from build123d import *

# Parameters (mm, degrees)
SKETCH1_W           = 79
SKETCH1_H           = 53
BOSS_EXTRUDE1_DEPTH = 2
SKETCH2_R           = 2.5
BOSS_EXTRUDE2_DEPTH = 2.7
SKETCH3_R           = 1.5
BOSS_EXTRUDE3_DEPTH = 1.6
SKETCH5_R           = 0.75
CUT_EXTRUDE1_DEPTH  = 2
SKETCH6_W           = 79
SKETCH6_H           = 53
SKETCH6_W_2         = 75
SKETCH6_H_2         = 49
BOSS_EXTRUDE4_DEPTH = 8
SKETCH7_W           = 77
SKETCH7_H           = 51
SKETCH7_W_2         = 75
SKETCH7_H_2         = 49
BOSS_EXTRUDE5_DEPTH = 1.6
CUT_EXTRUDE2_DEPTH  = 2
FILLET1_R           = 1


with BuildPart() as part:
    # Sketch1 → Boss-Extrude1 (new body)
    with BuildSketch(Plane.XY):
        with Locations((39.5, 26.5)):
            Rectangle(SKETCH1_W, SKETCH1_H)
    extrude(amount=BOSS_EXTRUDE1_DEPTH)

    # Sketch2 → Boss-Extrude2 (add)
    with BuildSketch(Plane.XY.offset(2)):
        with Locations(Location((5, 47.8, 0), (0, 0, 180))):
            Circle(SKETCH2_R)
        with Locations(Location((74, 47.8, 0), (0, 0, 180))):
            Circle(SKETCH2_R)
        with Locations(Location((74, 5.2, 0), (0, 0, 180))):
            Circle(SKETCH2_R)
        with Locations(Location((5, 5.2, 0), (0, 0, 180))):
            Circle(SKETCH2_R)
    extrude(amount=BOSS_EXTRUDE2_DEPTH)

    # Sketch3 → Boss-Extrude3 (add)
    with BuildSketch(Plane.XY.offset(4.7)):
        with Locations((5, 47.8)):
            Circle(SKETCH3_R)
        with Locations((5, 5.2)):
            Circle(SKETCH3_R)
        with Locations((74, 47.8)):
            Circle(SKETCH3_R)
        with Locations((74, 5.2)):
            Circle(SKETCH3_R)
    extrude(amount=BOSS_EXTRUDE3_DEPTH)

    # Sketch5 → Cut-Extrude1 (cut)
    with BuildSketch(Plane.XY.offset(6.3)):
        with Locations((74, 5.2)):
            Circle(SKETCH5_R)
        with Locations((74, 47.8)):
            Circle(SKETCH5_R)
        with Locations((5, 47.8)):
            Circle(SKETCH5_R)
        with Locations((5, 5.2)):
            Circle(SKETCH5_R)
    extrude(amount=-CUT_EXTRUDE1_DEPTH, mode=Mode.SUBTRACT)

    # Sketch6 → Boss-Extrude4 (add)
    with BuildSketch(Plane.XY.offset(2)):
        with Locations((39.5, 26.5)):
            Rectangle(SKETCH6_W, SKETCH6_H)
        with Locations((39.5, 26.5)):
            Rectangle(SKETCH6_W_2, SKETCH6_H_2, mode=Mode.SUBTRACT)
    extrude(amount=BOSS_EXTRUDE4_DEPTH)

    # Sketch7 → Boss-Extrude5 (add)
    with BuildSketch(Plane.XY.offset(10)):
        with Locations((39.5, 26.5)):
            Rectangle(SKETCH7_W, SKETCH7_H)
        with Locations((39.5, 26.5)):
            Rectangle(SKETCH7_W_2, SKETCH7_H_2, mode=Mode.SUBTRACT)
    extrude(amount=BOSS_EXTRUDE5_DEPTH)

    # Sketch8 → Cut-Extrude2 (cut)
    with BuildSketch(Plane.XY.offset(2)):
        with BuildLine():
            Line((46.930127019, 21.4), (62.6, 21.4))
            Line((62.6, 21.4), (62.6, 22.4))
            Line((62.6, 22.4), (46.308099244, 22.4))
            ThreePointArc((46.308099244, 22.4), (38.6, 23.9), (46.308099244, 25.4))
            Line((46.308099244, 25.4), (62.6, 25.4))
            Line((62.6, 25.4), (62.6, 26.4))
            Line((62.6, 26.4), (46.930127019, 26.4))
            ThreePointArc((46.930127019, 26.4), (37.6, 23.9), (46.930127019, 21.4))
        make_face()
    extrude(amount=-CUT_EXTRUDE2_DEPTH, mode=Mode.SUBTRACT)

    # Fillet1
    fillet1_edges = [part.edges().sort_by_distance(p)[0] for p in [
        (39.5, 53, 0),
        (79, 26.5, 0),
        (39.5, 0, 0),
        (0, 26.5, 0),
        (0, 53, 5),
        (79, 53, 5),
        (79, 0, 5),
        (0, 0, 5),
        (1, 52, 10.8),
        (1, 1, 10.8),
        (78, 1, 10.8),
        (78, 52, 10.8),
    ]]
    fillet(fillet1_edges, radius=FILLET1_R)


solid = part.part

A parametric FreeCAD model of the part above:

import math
import FreeCAD as App
import Part
import Sketcher
from FreeCAD import Vector
Q = App.Units.Quantity


def edges_at(feature, points):
    """Names of the edges that pass closest to the given points."""
    edges = feature.Shape.Edges
    near = lambda p: min(range(len(edges)), key=lambda i: edges[i].distToShape(Part.Vertex(*p))[0])
    return sorted({f"Edge{near(p) + 1}" for p in points})

doc = App.newDocument("Part")
params = doc.addObject("Spreadsheet::Sheet", "Params")
for row, (alias, value) in enumerate([
    ("sketch1_width", "79 mm"),
    ("sketch1_height", "53 mm"),
    ("pad1_length", "2 mm"),
    ("sketch2_diameter", "5 mm"),
    ("pad2_length", "2.7 mm"),
    ("sketch3_diameter", "3 mm"),
    ("pad3_length", "1.6 mm"),
    ("sketch4_diameter", "1.5 mm"),
    ("pocket1_length", "2 mm"),
    ("sketch5_width", "79 mm"),
    ("sketch5_width2", "75 mm"),
    ("sketch5_height", "53 mm"),
    ("sketch5_height2", "49 mm"),
    ("pad4_length", "8 mm"),
    ("sketch6_width", "77 mm"),
    ("sketch6_width2", "75 mm"),
    ("sketch6_height", "51 mm"),
    ("sketch6_height2", "49 mm"),
    ("pad5_length", "1.6 mm"),
    ("sketch7_radius", "4 mm"),
    ("sketch7_radius2", "5 mm"),
    ("sketch7_height", "1 mm"),
    ("pocket2_length", "2 mm"),
    ("fillet_radius", "1 mm"),
], start=1):
    params.set(f"A{row}", alias)
    params.set(f"B{row}", "=" + value)
    params.setAlias(f"B{row}", alias)

body = doc.addObject("PartDesign::Body", "Body")

# Sketch on XY plane
sketch1 = body.newObject("Sketcher::SketchObject", "Sketch")
sketch1.AttachmentSupport = (doc.getObject("XY_Plane"), [""])
sketch1.MapMode = "FlatFace"
sketch1.addGeometry([
    Part.LineSegment(Vector(0, 53, 0), Vector(0, 0, 0)),
    Part.LineSegment(Vector(0, 0, 0), Vector(79, 0, 0)),
    Part.LineSegment(Vector(79, 0, 0), Vector(79, 53, 0)),
    Part.LineSegment(Vector(79, 53, 0), Vector(0, 53, 0)),
], False)
sketch1.addConstraint([
    Sketcher.Constraint("Coincident", 0, 2, 1, 1),
    Sketcher.Constraint("Coincident", 1, 2, 2, 1),
    Sketcher.Constraint("Coincident", 2, 2, 3, 1),
    Sketcher.Constraint("Coincident", 3, 2, 0, 1),
    Sketcher.Constraint("Vertical", 0),
    Sketcher.Constraint("Horizontal", 1),
    Sketcher.Constraint("Vertical", 2),
    Sketcher.Constraint("Horizontal", 3),
    Sketcher.Constraint("Coincident", 0, 2, -1, 1),
    Sketcher.Constraint("DistanceX", 1, 1, 1, 2, Q("79 mm")),
    Sketcher.Constraint("DistanceY", 0, 2, 0, 1, Q("53 mm")),
])
sketch1.setExpression("Constraints[9]", "Params.sketch1_width")
sketch1.setExpression("Constraints[10]", "Params.sketch1_height")
pad1 = body.newObject("PartDesign::Pad", "Pad")
pad1.Profile = sketch1
pad1.setExpression("Length", "Params.pad1_length")

# Sketch on XY plane
sketch2 = body.newObject("Sketcher::SketchObject", "Sketch001")
sketch2.AttachmentSupport = (doc.getObject("XY_Plane"), [""])
sketch2.MapMode = "FlatFace"
sketch2.AttachmentOffset = App.Placement(Vector(0, 0, 2), App.Rotation())
sketch2.addGeometry([
    Part.Circle(Vector(5, 47.8, 0), Vector(0, 0, 1), 2.5),
    Part.Circle(Vector(74, 47.8, 0), Vector(0, 0, 1), 2.5),
    Part.Circle(Vector(74, 5.2, 0), Vector(0, 0, 1), 2.5),
    Part.Circle(Vector(5, 5.2, 0), Vector(0, 0, 1), 2.5),
], False)
sketch2.addConstraint([
    Sketcher.Constraint("Equal", 0, 1),
    Sketcher.Constraint("Equal", 1, 2),
    Sketcher.Constraint("Equal", 2, 3),
    Sketcher.Constraint("Horizontal", 0, 3, 1, 3),
    Sketcher.Constraint("Horizontal", 2, 3, 3, 3),
    Sketcher.Constraint("Vertical", 1, 3, 2, 3),
    Sketcher.Constraint("Vertical", 0, 3, 3, 3),
    Sketcher.Constraint("Diameter", 0, Q("5 mm")),
    Sketcher.Constraint("DistanceX", -1, 1, 0, 3, Q("5 mm")),
    Sketcher.Constraint("DistanceX", -1, 1, 1, 3, Q("74 mm")),
    Sketcher.Constraint("DistanceY", -1, 1, 0, 3, Q("47.8 mm")),
    Sketcher.Constraint("DistanceY", -1, 1, 2, 3, Q("5.2 mm")),
])
sketch2.setExpression("Constraints[7]", "Params.sketch2_diameter")
pad2 = body.newObject("PartDesign::Pad", "Pad001")
pad2.Profile = sketch2
pad2.setExpression("Length", "Params.pad2_length")

# Sketch on XY plane
sketch3 = body.newObject("Sketcher::SketchObject", "Sketch002")
sketch3.AttachmentSupport = (doc.getObject("XY_Plane"), [""])
sketch3.MapMode = "FlatFace"
sketch3.AttachmentOffset = App.Placement(Vector(0, 0, 4.7), App.Rotation())
sketch3.addGeometry([
    Part.Circle(Vector(5, 47.8, 0), Vector(0, 0, 1), 1.5),
    Part.Circle(Vector(5, 5.2, 0), Vector(0, 0, 1), 1.5),
    Part.Circle(Vector(74, 47.8, 0), Vector(0, 0, 1), 1.5),
    Part.Circle(Vector(74, 5.2, 0), Vector(0, 0, 1), 1.5),
], False)
sketch3.addConstraint([
    Sketcher.Constraint("Equal", 0, 1),
    Sketcher.Constraint("Equal", 1, 2),
    Sketcher.Constraint("Equal", 2, 3),
    Sketcher.Constraint("Horizontal", 0, 3, 2, 3),
    Sketcher.Constraint("Horizontal", 1, 3, 3, 3),
    Sketcher.Constraint("Vertical", 0, 3, 1, 3),
    Sketcher.Constraint("Vertical", 2, 3, 3, 3),
    Sketcher.Constraint("Diameter", 0, Q("3 mm")),
    Sketcher.Constraint("DistanceX", -1, 1, 0, 3, Q("5 mm")),
    Sketcher.Constraint("DistanceX", -1, 1, 2, 3, Q("74 mm")),
    Sketcher.Constraint("DistanceY", -1, 1, 0, 3, Q("47.8 mm")),
    Sketcher.Constraint("DistanceY", -1, 1, 1, 3, Q("5.2 mm")),
])
sketch3.setExpression("Constraints[7]", "Params.sketch3_diameter")
pad3 = body.newObject("PartDesign::Pad", "Pad002")
pad3.Profile = sketch3
pad3.setExpression("Length", "Params.pad3_length")

# Sketch on XY plane
sketch4 = body.newObject("Sketcher::SketchObject", "Sketch003")
sketch4.AttachmentSupport = (doc.getObject("XY_Plane"), [""])
sketch4.MapMode = "FlatFace"
sketch4.AttachmentOffset = App.Placement(Vector(0, 0, 6.3), App.Rotation())
sketch4.addGeometry([
    Part.Circle(Vector(74, 5.2, 0), Vector(0, 0, 1), 0.8),
    Part.Circle(Vector(74, 47.8, 0), Vector(0, 0, 1), 0.8),
    Part.Circle(Vector(5, 47.8, 0), Vector(0, 0, 1), 0.8),
    Part.Circle(Vector(5, 5.2, 0), Vector(0, 0, 1), 0.8),
], False)
sketch4.addConstraint([
    Sketcher.Constraint("Equal", 0, 1),
    Sketcher.Constraint("Equal", 1, 2),
    Sketcher.Constraint("Equal", 2, 3),
    Sketcher.Constraint("Horizontal", 1, 3, 2, 3),
    Sketcher.Constraint("Horizontal", 0, 3, 3, 3),
    Sketcher.Constraint("Vertical", 0, 3, 1, 3),
    Sketcher.Constraint("Vertical", 2, 3, 3, 3),
    Sketcher.Constraint("Diameter", 0, Q("1.5 mm")),
    Sketcher.Constraint("DistanceX", -1, 1, 0, 3, Q("74 mm")),
    Sketcher.Constraint("DistanceX", -1, 1, 2, 3, Q("5 mm")),
    Sketcher.Constraint("DistanceY", -1, 1, 0, 3, Q("5.2 mm")),
    Sketcher.Constraint("DistanceY", -1, 1, 1, 3, Q("47.8 mm")),
])
sketch4.setExpression("Constraints[7]", "Params.sketch4_diameter")
pocket1 = body.newObject("PartDesign::Pocket", "Pocket")
pocket1.Profile = sketch4
pocket1.setExpression("Length", "Params.pocket1_length")

# Sketch on XY plane
sketch5 = body.newObject("Sketcher::SketchObject", "Sketch004")
sketch5.AttachmentSupport = (doc.getObject("XY_Plane"), [""])
sketch5.MapMode = "FlatFace"
sketch5.AttachmentOffset = App.Placement(Vector(0, 0, 2), App.Rotation())
sketch5.addGeometry([
    Part.LineSegment(Vector(0, 53, 0), Vector(0, 0, 0)),  # 0
    Part.LineSegment(Vector(0, 0, 0), Vector(79, 0, 0)),  # 1
    Part.LineSegment(Vector(79, 0, 0), Vector(79, 53, 0)),  # 2
    Part.LineSegment(Vector(79, 53, 0), Vector(0, 53, 0)),  # 3
    Part.LineSegment(Vector(77, 2, 0), Vector(2, 2, 0)),  # 4
    Part.LineSegment(Vector(2, 2, 0), Vector(2, 51, 0)),  # 5
    Part.LineSegment(Vector(2, 51, 0), Vector(77, 51, 0)),  # 6
    Part.LineSegment(Vector(77, 51, 0), Vector(77, 2, 0)),  # 7
], False)
sketch5.addConstraint([
    Sketcher.Constraint("Coincident", 0, 2, 1, 1),
    Sketcher.Constraint("Coincident", 1, 2, 2, 1),
    Sketcher.Constraint("Coincident", 2, 2, 3, 1),
    Sketcher.Constraint("Coincident", 3, 2, 0, 1),
    Sketcher.Constraint("Coincident", 4, 2, 5, 1),
    Sketcher.Constraint("Coincident", 5, 2, 6, 1),
    Sketcher.Constraint("Coincident", 6, 2, 7, 1),
    Sketcher.Constraint("Coincident", 7, 2, 4, 1),
    Sketcher.Constraint("Vertical", 0),
    Sketcher.Constraint("Horizontal", 1),
    Sketcher.Constraint("Vertical", 2),
    Sketcher.Constraint("Horizontal", 3),
    Sketcher.Constraint("Horizontal", 4),
    Sketcher.Constraint("Vertical", 5),
    Sketcher.Constraint("Horizontal", 6),
    Sketcher.Constraint("Vertical", 7),
    Sketcher.Constraint("Coincident", 0, 2, -1, 1),
    Sketcher.Constraint("DistanceX", 1, 1, 1, 2, Q("79 mm")),
    Sketcher.Constraint("DistanceX", 4, 2, 4, 1, Q("75 mm")),
    Sketcher.Constraint("DistanceY", 0, 2, 0, 1, Q("53 mm")),
    Sketcher.Constraint("DistanceY", 5, 1, 5, 2, Q("49 mm")),
    Sketcher.Constraint("DistanceX", -1, 1, 4, 2, Q("2 mm")),
    Sketcher.Constraint("DistanceY", -1, 1, 4, 2, Q("2 mm")),
])
sketch5.setExpression("Constraints[17]", "Params.sketch5_width")
sketch5.setExpression("Constraints[18]", "Params.sketch5_width2")
sketch5.setExpression("Constraints[19]", "Params.sketch5_height")
sketch5.setExpression("Constraints[20]", "Params.sketch5_height2")
pad4 = body.newObject("PartDesign::Pad", "Pad003")
pad4.Profile = sketch5
pad4.setExpression("Length", "Params.pad4_length")

# Sketch on XY plane
sketch6 = body.newObject("Sketcher::SketchObject", "Sketch005")
sketch6.AttachmentSupport = (doc.getObject("XY_Plane"), [""])
sketch6.MapMode = "FlatFace"
sketch6.AttachmentOffset = App.Placement(Vector(0, 0, 10), App.Rotation())
sketch6.addGeometry([
    Part.LineSegment(Vector(1, 52, 0), Vector(1, 1, 0)),  # 0
    Part.LineSegment(Vector(1, 1, 0), Vector(78, 1, 0)),  # 1
    Part.LineSegment(Vector(78, 1, 0), Vector(78, 52, 0)),  # 2
    Part.LineSegment(Vector(78, 52, 0), Vector(1, 52, 0)),  # 3
    Part.LineSegment(Vector(77, 2, 0), Vector(2, 2, 0)),  # 4
    Part.LineSegment(Vector(2, 2, 0), Vector(2, 51, 0)),  # 5
    Part.LineSegment(Vector(2, 51, 0), Vector(77, 51, 0)),  # 6
    Part.LineSegment(Vector(77, 51, 0), Vector(77, 2, 0)),  # 7
], False)
sketch6.addConstraint([
    Sketcher.Constraint("Coincident", 0, 2, 1, 1),
    Sketcher.Constraint("Coincident", 1, 2, 2, 1),
    Sketcher.Constraint("Coincident", 2, 2, 3, 1),
    Sketcher.Constraint("Coincident", 3, 2, 0, 1),
    Sketcher.Constraint("Coincident", 4, 2, 5, 1),
    Sketcher.Constraint("Coincident", 5, 2, 6, 1),
    Sketcher.Constraint("Coincident", 6, 2, 7, 1),
    Sketcher.Constraint("Coincident", 7, 2, 4, 1),
    Sketcher.Constraint("Vertical", 0),
    Sketcher.Constraint("Horizontal", 1),
    Sketcher.Constraint("Vertical", 2),
    Sketcher.Constraint("Horizontal", 3),
    Sketcher.Constraint("Horizontal", 4),
    Sketcher.Constraint("Vertical", 5),
    Sketcher.Constraint("Horizontal", 6),
    Sketcher.Constraint("Vertical", 7),
    Sketcher.Constraint("DistanceX", 1, 1, 1, 2, Q("77 mm")),
    Sketcher.Constraint("DistanceX", 4, 2, 4, 1, Q("75 mm")),
    Sketcher.Constraint("DistanceY", 0, 2, 0, 1, Q("51 mm")),
    Sketcher.Constraint("DistanceY", 5, 1, 5, 2, Q("49 mm")),
    Sketcher.Constraint("DistanceX", -1, 1, 0, 2, Q("1 mm")),
    Sketcher.Constraint("DistanceY", -1, 1, 0, 2, Q("1 mm")),
    Sketcher.Constraint("DistanceX", -1, 1, 4, 2, Q("2 mm")),
    Sketcher.Constraint("DistanceY", -1, 1, 4, 2, Q("2 mm")),
])
sketch6.setExpression("Constraints[16]", "Params.sketch6_width")
sketch6.setExpression("Constraints[17]", "Params.sketch6_width2")
sketch6.setExpression("Constraints[18]", "Params.sketch6_height")
sketch6.setExpression("Constraints[19]", "Params.sketch6_height2")
pad5 = body.newObject("PartDesign::Pad", "Pad004")
pad5.Profile = sketch6
pad5.setExpression("Length", "Params.pad5_length")

# Sketch on XY plane
sketch7 = body.newObject("Sketcher::SketchObject", "Sketch006")
sketch7.AttachmentSupport = (doc.getObject("XY_Plane"), [""])
sketch7.MapMode = "FlatFace"
sketch7.AttachmentOffset = App.Placement(Vector(0, 0, 2), App.Rotation())
sketch7.addGeometry([
    Part.LineSegment(Vector(46.9, 21.4, 0), Vector(62.6, 21.4, 0)),  # 0
    Part.LineSegment(Vector(62.6, 21.4, 0), Vector(62.6, 22.4, 0)),  # 1
    Part.LineSegment(Vector(62.6, 22.4, 0), Vector(46.3, 22.4, 0)),  # 2
    Part.ArcOfCircle(Part.Circle(Vector(42.6, 23.9, 0), Vector(0, 0, 1), 4), math.radians(22), math.radians(338)),  # 3
    Part.LineSegment(Vector(46.3, 25.4, 0), Vector(62.6, 25.4, 0)),  # 4
    Part.LineSegment(Vector(62.6, 25.4, 0), Vector(62.6, 26.4, 0)),  # 5
    Part.LineSegment(Vector(62.6, 26.4, 0), Vector(46.9, 26.4, 0)),  # 6
    Part.ArcOfCircle(Part.Circle(Vector(42.6, 23.9, 0), Vector(0, 0, 1), 5), math.radians(30), math.radians(330)),  # 7
], False)
sketch7.addConstraint([
    Sketcher.Constraint("Coincident", 0, 2, 1, 1),
    Sketcher.Constraint("Coincident", 1, 2, 2, 1),
    Sketcher.Constraint("Coincident", 2, 2, 3, 2),
    Sketcher.Constraint("Coincident", 3, 1, 4, 1),
    Sketcher.Constraint("Coincident", 4, 2, 5, 1),
    Sketcher.Constraint("Coincident", 5, 2, 6, 1),
    Sketcher.Constraint("Coincident", 6, 2, 7, 1),
    Sketcher.Constraint("Coincident", 7, 2, 0, 1),
    Sketcher.Constraint("Horizontal", 0),
    Sketcher.Constraint("Vertical", 1),
    Sketcher.Constraint("Horizontal", 2),
    Sketcher.Constraint("Horizontal", 4),
    Sketcher.Constraint("Vertical", 5),
    Sketcher.Constraint("Horizontal", 6),
    Sketcher.Constraint("Coincident", 7, 3, 3, 3),
    Sketcher.Constraint("Vertical", 2, 2, 3, 1),
    Sketcher.Constraint("Vertical", 1, 2, 4, 2),
    Sketcher.Constraint("Vertical", 6, 2, 7, 2),
    Sketcher.Constraint("Radius", 3, Q("4 mm")),
    Sketcher.Constraint("Radius", 7, Q("5 mm")),
    Sketcher.Constraint("DistanceY", 1, 1, 1, 2, Q("1 mm")),
    Sketcher.Constraint("DistanceX", 3, 3, 0, 2, Q("20 mm")),
    Sketcher.Constraint("DistanceY", 2, 2, 3, 1, Q("3 mm")),
    Sketcher.Constraint("DistanceX", -1, 1, 3, 3, Q("42.6 mm")),
    Sketcher.Constraint("DistanceY", -1, 1, 3, 3, Q("23.9 mm")),
])
sketch7.setExpression("Constraints[18]", "Params.sketch7_radius")
sketch7.setExpression("Constraints[19]", "Params.sketch7_radius2")
sketch7.setExpression("Constraints[20]", "Params.sketch7_height")
pocket2 = body.newObject("PartDesign::Pocket", "Pocket001")
pocket2.Profile = sketch7
pocket2.setExpression("Length", "Params.pocket2_length")
doc.recompute()

fillet = body.newObject("PartDesign::Fillet", "Fillet")
fillet.Base = (pocket2, edges_at(pocket2, [
    (39.5, 53, 0),
    (79, 26.5, 0),
    (39.5, 0, 0),
    (0, 26.5, 0),
    (0, 53, 5),
    (79, 53, 5),
    (79, 0, 5),
    (0, 0, 5),
    (1, 52, 10.8),
    (1, 1, 10.8),
    (78, 1, 10.8),
    (78, 52, 10.8),
]))
fillet.setExpression("Radius", "Params.fillet_radius")

doc.recompute()
